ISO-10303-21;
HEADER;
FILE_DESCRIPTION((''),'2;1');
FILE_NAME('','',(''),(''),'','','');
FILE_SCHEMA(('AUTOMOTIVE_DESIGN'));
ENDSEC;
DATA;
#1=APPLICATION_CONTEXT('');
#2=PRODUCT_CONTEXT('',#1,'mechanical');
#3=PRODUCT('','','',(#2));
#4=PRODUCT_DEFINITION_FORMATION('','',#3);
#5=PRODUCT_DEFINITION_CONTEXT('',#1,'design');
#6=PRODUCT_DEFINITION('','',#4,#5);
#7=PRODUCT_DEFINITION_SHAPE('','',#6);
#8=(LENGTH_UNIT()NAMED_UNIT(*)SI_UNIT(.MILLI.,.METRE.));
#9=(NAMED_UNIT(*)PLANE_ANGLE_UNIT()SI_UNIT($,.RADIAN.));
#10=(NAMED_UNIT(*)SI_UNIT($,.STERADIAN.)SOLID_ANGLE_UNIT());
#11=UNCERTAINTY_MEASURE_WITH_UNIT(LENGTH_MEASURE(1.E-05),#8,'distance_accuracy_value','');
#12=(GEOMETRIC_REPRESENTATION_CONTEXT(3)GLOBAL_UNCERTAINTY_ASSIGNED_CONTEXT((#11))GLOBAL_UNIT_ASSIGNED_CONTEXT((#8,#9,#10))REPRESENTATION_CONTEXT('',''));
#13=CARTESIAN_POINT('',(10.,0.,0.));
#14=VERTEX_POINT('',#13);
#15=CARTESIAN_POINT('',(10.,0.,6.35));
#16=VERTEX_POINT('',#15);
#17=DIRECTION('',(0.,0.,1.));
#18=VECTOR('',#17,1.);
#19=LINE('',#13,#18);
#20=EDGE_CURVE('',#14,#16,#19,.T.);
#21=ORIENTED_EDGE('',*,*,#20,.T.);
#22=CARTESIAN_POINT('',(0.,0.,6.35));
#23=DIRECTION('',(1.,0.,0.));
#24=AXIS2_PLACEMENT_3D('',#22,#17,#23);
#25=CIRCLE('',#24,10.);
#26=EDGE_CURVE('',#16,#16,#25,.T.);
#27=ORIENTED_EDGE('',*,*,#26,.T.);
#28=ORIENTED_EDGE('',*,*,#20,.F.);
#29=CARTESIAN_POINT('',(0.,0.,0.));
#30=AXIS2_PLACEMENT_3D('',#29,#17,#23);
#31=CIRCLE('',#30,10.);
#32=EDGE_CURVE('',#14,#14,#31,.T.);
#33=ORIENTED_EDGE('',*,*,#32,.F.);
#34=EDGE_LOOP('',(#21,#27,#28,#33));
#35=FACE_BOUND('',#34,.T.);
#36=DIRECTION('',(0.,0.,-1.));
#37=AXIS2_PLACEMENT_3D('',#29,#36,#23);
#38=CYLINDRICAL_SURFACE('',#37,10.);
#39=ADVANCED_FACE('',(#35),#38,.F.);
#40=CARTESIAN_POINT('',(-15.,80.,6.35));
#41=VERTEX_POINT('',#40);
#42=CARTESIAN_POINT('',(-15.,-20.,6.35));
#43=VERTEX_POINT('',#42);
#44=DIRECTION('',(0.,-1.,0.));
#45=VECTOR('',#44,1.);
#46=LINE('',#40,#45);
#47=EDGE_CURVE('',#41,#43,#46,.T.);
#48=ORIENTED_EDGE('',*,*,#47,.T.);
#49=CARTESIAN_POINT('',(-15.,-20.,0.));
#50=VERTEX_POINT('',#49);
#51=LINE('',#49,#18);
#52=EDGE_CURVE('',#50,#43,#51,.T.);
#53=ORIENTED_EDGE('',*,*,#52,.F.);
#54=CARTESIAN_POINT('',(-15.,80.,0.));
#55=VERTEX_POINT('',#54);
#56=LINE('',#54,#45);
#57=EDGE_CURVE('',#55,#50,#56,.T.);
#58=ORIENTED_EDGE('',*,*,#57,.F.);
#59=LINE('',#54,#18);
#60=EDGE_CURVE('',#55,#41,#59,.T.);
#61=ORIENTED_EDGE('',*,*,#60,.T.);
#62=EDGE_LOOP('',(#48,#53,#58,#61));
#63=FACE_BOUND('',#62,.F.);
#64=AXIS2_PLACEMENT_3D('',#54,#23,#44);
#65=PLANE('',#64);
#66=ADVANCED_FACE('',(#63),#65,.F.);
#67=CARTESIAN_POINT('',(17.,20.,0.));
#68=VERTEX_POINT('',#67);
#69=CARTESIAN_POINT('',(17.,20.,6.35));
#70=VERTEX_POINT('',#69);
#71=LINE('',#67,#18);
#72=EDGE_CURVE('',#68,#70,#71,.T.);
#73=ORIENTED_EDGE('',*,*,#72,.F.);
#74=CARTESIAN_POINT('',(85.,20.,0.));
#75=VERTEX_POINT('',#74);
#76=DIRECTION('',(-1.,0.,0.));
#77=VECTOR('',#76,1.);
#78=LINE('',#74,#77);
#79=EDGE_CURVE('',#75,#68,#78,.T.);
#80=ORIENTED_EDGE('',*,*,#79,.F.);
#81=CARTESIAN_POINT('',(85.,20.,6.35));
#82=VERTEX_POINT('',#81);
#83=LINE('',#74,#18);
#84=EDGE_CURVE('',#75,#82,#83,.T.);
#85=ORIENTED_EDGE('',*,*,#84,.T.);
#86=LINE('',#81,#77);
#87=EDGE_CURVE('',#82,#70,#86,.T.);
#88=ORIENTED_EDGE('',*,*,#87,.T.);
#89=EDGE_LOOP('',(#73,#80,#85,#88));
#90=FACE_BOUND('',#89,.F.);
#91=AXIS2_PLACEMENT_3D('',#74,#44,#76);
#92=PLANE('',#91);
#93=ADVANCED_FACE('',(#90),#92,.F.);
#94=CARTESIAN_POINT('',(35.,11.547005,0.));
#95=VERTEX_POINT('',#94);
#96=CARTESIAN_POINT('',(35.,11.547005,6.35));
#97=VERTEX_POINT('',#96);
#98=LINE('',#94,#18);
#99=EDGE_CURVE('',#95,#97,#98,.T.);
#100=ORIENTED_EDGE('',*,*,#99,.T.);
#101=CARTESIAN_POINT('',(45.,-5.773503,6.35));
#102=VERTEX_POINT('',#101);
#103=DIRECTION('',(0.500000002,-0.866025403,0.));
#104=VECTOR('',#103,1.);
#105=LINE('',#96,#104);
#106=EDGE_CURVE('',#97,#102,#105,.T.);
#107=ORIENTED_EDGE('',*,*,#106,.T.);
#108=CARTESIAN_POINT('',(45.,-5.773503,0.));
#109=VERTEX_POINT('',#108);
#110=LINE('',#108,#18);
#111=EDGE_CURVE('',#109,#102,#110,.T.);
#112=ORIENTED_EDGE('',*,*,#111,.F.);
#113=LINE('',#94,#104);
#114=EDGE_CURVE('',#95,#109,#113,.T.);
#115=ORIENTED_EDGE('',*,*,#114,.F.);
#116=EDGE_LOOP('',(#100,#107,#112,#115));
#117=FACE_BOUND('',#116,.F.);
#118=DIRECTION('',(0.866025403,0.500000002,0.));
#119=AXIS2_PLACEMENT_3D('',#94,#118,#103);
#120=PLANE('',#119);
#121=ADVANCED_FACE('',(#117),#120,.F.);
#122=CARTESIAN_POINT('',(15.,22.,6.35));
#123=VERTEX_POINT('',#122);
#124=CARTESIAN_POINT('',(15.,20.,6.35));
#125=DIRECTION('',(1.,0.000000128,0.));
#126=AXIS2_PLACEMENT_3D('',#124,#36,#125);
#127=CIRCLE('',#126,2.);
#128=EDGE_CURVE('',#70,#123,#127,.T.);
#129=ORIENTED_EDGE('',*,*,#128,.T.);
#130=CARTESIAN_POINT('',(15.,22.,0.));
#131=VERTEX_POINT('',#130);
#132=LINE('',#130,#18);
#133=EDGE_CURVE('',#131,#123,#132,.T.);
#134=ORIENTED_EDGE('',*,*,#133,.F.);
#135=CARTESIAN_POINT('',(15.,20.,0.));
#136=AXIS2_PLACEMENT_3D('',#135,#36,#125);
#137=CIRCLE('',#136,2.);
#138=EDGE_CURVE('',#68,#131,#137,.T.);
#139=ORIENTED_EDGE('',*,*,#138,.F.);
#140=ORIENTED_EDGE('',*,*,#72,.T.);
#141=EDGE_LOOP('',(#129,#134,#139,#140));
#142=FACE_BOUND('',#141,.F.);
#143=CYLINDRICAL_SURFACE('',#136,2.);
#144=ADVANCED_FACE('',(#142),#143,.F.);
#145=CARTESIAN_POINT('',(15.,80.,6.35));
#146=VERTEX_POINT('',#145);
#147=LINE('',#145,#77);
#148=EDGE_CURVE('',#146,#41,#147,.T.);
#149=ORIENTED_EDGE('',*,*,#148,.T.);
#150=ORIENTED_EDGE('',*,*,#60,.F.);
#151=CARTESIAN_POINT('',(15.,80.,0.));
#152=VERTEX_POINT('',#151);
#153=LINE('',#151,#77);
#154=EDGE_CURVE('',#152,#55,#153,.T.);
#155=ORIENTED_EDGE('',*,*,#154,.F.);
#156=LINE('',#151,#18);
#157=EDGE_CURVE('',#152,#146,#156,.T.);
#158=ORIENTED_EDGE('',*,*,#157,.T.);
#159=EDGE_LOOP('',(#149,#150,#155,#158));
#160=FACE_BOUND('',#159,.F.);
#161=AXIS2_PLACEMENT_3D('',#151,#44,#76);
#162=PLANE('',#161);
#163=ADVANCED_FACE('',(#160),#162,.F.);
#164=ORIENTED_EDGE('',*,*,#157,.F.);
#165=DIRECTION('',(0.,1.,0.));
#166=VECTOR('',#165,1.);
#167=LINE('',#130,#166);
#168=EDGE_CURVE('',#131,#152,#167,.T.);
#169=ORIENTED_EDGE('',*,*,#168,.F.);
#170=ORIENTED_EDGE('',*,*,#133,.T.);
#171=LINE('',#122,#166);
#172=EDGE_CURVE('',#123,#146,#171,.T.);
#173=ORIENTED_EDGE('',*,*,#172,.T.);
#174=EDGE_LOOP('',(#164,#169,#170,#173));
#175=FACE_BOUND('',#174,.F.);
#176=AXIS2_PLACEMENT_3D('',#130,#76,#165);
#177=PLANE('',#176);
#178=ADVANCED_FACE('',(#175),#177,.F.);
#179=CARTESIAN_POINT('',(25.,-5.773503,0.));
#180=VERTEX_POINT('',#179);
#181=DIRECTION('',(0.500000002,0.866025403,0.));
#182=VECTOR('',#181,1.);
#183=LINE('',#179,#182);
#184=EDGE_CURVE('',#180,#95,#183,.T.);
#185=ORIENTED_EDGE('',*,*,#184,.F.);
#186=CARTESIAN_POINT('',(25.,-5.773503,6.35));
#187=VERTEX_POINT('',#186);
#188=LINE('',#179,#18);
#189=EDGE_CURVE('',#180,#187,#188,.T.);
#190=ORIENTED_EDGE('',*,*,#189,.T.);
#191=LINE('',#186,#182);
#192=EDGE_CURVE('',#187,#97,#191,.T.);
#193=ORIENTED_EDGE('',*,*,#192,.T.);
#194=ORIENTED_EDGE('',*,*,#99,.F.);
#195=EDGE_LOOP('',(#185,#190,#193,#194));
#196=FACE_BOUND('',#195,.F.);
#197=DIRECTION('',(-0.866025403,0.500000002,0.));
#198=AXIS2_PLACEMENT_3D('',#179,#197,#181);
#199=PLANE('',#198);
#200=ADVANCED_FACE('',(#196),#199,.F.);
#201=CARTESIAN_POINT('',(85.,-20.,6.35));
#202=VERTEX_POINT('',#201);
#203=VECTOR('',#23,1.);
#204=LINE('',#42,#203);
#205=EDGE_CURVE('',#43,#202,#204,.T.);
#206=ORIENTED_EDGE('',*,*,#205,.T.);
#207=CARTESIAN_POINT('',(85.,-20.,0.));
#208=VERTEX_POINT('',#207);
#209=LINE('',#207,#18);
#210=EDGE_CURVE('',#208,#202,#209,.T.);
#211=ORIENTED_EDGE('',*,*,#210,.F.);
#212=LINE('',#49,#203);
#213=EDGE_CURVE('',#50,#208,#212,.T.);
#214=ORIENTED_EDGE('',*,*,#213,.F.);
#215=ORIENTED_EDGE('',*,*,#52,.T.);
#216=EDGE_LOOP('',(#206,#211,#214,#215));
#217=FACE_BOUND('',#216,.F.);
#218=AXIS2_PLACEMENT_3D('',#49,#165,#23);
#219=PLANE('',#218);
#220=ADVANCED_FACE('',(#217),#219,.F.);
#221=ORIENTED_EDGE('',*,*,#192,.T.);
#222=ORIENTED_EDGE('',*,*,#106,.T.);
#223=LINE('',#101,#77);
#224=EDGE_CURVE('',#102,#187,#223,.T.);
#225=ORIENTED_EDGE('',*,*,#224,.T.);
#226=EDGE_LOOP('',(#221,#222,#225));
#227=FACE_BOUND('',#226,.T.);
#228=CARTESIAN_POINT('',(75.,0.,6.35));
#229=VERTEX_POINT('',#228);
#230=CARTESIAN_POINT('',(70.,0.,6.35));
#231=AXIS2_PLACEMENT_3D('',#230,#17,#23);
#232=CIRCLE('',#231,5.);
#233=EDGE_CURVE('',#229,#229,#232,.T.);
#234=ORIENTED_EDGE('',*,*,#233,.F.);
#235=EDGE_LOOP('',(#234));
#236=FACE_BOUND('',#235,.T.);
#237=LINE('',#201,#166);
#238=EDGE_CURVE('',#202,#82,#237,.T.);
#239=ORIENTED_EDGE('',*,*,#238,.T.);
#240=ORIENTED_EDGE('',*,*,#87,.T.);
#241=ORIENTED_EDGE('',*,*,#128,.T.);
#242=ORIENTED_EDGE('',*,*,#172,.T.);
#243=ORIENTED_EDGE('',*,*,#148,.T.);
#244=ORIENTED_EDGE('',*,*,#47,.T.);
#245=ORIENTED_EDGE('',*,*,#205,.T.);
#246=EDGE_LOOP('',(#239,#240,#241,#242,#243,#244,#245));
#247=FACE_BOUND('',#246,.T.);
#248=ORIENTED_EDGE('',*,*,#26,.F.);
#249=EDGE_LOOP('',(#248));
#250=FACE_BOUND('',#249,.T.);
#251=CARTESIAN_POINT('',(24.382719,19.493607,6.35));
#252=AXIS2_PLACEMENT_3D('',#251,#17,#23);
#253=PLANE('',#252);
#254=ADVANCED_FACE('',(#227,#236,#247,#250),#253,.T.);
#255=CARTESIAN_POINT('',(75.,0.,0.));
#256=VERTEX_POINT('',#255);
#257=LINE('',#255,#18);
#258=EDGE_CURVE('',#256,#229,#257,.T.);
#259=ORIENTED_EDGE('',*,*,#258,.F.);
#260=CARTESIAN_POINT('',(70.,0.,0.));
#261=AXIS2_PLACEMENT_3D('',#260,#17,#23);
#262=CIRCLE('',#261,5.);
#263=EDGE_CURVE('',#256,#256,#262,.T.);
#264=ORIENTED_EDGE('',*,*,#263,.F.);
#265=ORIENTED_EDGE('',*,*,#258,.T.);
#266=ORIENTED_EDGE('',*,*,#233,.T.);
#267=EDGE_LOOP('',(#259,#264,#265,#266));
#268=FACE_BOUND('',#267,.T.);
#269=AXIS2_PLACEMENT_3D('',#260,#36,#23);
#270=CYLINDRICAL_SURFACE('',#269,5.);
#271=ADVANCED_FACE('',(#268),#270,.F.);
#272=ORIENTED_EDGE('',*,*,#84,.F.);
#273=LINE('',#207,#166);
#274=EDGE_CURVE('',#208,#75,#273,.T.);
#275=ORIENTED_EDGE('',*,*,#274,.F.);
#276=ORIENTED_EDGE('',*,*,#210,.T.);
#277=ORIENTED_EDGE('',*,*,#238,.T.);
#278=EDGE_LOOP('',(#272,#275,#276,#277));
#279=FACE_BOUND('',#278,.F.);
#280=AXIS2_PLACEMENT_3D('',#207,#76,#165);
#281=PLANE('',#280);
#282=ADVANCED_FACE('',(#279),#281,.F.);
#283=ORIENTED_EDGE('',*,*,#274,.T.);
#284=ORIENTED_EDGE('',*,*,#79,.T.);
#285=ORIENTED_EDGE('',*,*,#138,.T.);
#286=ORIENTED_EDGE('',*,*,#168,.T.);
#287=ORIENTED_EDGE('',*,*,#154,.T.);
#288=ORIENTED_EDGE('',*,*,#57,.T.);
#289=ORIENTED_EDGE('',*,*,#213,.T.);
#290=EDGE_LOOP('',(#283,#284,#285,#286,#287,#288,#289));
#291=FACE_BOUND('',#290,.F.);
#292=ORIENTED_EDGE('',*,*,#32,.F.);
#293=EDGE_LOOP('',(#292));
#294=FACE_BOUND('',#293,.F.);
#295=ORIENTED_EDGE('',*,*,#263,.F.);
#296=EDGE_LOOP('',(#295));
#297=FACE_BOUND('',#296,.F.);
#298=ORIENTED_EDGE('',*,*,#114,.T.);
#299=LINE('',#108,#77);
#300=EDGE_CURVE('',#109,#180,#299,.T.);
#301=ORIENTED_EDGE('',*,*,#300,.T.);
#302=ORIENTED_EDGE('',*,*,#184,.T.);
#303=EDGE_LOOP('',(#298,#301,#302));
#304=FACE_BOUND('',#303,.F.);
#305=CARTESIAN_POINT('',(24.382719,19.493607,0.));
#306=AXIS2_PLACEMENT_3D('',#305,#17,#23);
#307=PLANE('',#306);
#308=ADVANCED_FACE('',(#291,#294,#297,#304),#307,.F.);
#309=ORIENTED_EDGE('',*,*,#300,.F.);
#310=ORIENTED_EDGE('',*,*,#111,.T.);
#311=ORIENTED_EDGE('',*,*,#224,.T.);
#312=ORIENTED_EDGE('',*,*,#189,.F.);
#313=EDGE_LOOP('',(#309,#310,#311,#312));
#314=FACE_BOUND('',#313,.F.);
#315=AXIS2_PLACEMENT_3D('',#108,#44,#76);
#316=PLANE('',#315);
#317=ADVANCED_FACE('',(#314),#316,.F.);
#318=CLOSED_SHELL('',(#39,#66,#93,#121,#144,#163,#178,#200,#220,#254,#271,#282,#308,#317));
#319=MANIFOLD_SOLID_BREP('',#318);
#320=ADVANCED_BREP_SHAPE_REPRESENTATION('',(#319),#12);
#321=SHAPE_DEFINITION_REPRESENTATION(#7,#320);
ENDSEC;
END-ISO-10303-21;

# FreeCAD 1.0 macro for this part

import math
import FreeCAD as App
import Part
import Sketcher
Q = App.Units.Quantity


def add_polygon(sketch, points):
    """Adds a closed chain of lines whose ends are joined by coincident constraints."""
    first, n = sketch.GeometryCount, len(points)
    for a, b in zip(points, points[1:] + points[:1]):
        sketch.addGeometry(Part.LineSegment(App.Vector(*a, 0), App.Vector(*b, 0)), False)
    for i in range(n):
        sketch.addConstraint(Sketcher.Constraint("Coincident", first + i, 2, first + (i + 1) % n, 1))

doc = App.newDocument("Part")
body = doc.addObject("PartDesign::Body", "Body")

# Sketch on XY plane
sketch1 = body.newObject("Sketcher::SketchObject", "Sketch")
sketch1.AttachmentSupport = (doc.getObject("XY_Plane"), [""])
sketch1.MapMode = "FlatFace"
sketch1.addGeometry(Part.LineSegment(App.Vector(15, 22, 0), App.Vector(15, 80, 0)), False)  # 0
sketch1.addGeometry(Part.LineSegment(App.Vector(15, 80, 0), App.Vector(-15, 80, 0)), False)  # 1
sketch1.addGeometry(Part.LineSegment(App.Vector(-15, 80, 0), App.Vector(-15, -20, 0)), False)  # 2
sketch1.addGeometry(Part.LineSegment(App.Vector(-15, -20, 0), App.Vector(85, -20, 0)), False)  # 3
sketch1.addGeometry(Part.LineSegment(App.Vector(85, -20, 0), App.Vector(85, 20, 0)), False)  # 4
sketch1.addGeometry(Part.LineSegment(App.Vector(85, 20, 0), App.Vector(17, 20, 0)), False)  # 5
sketch1.addGeometry(Part.ArcOfCircle(Part.Circle(App.Vector(15, 20, 0), App.Vector(0, 0, 1), 2), math.radians(90), math.radians(360)), False)  # 6
sketch1.addGeometry(Part.Circle(App.Vector(0, 0, 0), App.Vector(0, 0, 1), 10), False)  # 7
sketch1.addGeometry(Part.Circle(App.Vector(70, 0, 0), App.Vector(0, 0, 1), 5), False)  # 8
add_polygon(sketch1, [(45, -5.8), (25, -5.8), (35, 11.5)])  # lines 9-11
sketch1.addConstraint([
    Sketcher.Constraint("Coincident", 0, 2, 1, 1),
    Sketcher.Constraint("Coincident", 1, 2, 2, 1),
    Sketcher.Constraint("Coincident", 2, 2, 3, 1),
    Sketcher.Constraint("Coincident", 3, 2, 4, 1),
    Sketcher.Constraint("Coincident", 4, 2, 5, 1),
    Sketcher.Constraint("Coincident", 5, 2, 6, 2),
    Sketcher.Constraint("Coincident", 6, 1, 0, 1),
    Sketcher.Constraint("Vertical", 0),
    Sketcher.Constraint("Horizontal", 1),
    Sketcher.Constraint("Vertical", 2),
    Sketcher.Constraint("Horizontal", 3),
    Sketcher.Constraint("Vertical", 4),
    Sketcher.Constraint("Horizontal", 5),
    Sketcher.Constraint("Horizontal", 9),
    Sketcher.Constraint("Coincident", 7, 3, -1, 1),
    Sketcher.Constraint("PointOnObject", 8, 3, -1),
    Sketcher.Constraint("Horizontal", 6, 3, 4, 2),
    Sketcher.Constraint("Vertical", 6, 3, 0, 2),
    Sketcher.Constraint("Equal", 3, 2),
    Sketcher.Constraint("Equal", 10, 11),
    Sketcher.Constraint("Diameter", 7, Q("20 mm")),
    Sketcher.Constraint("Diameter", 8, Q("10 mm")),
    Sketcher.Constraint("Radius", 6, Q("2 mm")),
    Sketcher.Constraint("DistanceX", 1, 2, 1, 1, Q("30 mm")),
    Sketcher.Constraint("DistanceX", 3, 1, 3, 2, Q("100 mm")),
    Sketcher.Constraint("DistanceX", 9, 2, 9, 1, Q("20 mm")),
    Sketcher.Constraint("DistanceY", 0, 1, 0, 2, Q("58 mm")),
    Sketcher.Constraint("Angle", 10, Q("60 deg")),
    Sketcher.Constraint("DistanceX", -1, 1, 6, 3, Q("15 mm")),
    Sketcher.Constraint("DistanceY", -1, 1, 6, 3, Q("20 mm")),
    Sketcher.Constraint("DistanceX", -1, 1, 8, 3, Q("70 mm")),
    Sketcher.Constraint("DistanceX", -1, 1, 9, 2, Q("25 mm")),
    Sketcher.Constraint("DistanceY", 9, 2, -1, 1, Q("5.773503 mm")),
])
pad1 = body.newObject("PartDesign::Pad", "Pad")
pad1.Profile = sketch1
pad1.Length = 6.35

doc.recompute()
